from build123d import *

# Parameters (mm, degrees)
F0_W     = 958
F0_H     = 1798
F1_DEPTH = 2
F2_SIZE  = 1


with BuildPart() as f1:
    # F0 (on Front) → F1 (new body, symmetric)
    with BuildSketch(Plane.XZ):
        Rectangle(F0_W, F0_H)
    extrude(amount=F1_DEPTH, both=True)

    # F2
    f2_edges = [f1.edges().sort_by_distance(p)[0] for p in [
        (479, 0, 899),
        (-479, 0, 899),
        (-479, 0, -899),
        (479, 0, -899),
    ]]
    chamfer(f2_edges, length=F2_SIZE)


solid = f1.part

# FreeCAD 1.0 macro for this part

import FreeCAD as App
import Part
import Sketcher

V = App.Vector
Q = App.Units.Quantity


def edges_at(feature, points):
    """Names of the edges that pass closest to the given points."""
    edges = feature.Shape.Edges
    near = lambda p: min(range(len(edges)), key=lambda i: edges[i].distToShape(Part.Vertex(*p))[0])
    return sorted({f"Edge{near(p) + 1}" for p in points})

doc = App.newDocument("Part")
params = doc.addObject("Spreadsheet::Sheet", "Params")
for row, (alias, value) in enumerate([
    ("sketch1_width", "958 mm"),
    ("sketch1_height", "1798 mm"),
    ("pad1_length", "4 mm"),
    ("chamfer_size", "1 mm"),
], start=1):
    params.set(f"A{row}", alias)
    params.set(f"B{row}", "=" + value)
    params.setAlias(f"B{row}", alias)

body = doc.addObject("PartDesign::Body", "Body")

# Sketch on XZ plane
sketch1 = doc.addObject("Sketcher::SketchObject", "Sketch")
body.addObject(sketch1)
sketch1.AttachmentSupport = (doc.XZ_Plane, [""])
sketch1.MapMode = "FlatFace"
sketch1.addGeometry(Part.LineSegment(V(-479, 899, 0), V(-479, -899, 0)), False)
sketch1.addGeometry(Part.LineSegment(V(-479, -899, 0), V(479, -899, 0)), False)
sketch1.addGeometry(Part.LineSegment(V(479, -899, 0), V(479, 899, 0)), False)
sketch1.addGeometry(Part.LineSegment(V(479, 899, 0), V(-479, 899, 0)), False)
sketch1.addConstraint(Sketcher.Constraint("Coincident", 0, 2, 1, 1))
sketch1.addConstraint(Sketcher.Constraint("Coincident", 1, 2, 2, 1))
sketch1.addConstraint(Sketcher.Constraint("Coincident", 2, 2, 3, 1))
sketch1.addConstraint(Sketcher.Constraint("Coincident", 3, 2, 0, 1))
sketch1.addConstraint(Sketcher.Constraint("Vertical", 0))
sketch1.addConstraint(Sketcher.Constraint("Horizontal", 1))
sketch1.addConstraint(Sketcher.Constraint("Vertical", 2))
sketch1.addConstraint(Sketcher.Constraint("Horizontal", 3))
sketch1.addConstraint(Sketcher.Constraint("Symmetric", 0, 2, 2, 2, -1, 1))
sketch1.addConstraint(Sketcher.Constraint("DistanceX", 1, 1, 1, 2, Q("958 mm")))
sketch1.addConstraint(Sketcher.Constraint("DistanceY", 0, 2, 0, 1, Q("1798 mm")))
sketch1.setExpression("Constraints[9]", "Params.sketch1_width")
sketch1.setExpression("Constraints[10]", "Params.sketch1_height")
pad1 = doc.addObject("PartDesign::Pad", "Pad")
body.addObject(pad1)
pad1.Profile = sketch1
pad1.setExpression("Length", "Params.pad1_length")
pad1.Midplane = True
doc.recompute()

chamfer = doc.addObject("PartDesign::Chamfer", "Chamfer")
body.addObject(chamfer)
chamfer.Base = (pad1, edges_at(pad1, [
    (479, 0, 899),
    (-479, 0, 899),
    (-479, 0, -899),
    (479, 0, -899),
]))
chamfer.setExpression("Size", "Params.chamfer_size")

doc.recompute()
